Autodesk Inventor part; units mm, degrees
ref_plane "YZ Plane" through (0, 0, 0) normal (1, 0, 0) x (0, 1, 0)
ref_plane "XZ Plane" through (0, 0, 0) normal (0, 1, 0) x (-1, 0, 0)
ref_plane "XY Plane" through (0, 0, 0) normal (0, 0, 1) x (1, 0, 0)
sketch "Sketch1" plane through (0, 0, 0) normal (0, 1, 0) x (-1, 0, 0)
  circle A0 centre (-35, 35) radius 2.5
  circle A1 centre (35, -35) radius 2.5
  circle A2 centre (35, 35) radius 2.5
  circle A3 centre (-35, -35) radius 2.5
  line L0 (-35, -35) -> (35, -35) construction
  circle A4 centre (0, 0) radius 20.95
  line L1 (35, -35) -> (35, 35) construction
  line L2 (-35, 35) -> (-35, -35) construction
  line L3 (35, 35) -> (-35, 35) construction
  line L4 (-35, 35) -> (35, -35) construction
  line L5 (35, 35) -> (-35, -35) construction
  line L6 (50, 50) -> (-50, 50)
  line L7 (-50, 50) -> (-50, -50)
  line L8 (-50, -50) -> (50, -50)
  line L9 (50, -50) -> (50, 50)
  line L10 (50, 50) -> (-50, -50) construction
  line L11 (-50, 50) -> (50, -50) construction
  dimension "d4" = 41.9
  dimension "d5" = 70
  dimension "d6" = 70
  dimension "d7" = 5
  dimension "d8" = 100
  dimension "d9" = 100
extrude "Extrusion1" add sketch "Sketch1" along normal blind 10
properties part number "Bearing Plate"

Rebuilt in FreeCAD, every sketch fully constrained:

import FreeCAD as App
import Part
import Sketcher
from FreeCAD import Vector
Q = App.Units.Quantity

doc = App.newDocument("Part")
body = doc.addObject("PartDesign::Body", "Body")

sketch1 = doc.addObject("Sketcher::SketchObject", "Sketch")
body.addObject(sketch1)
sketch1.AttachmentSupport = (doc.XZ_Plane, [""])
sketch1.MapMode = "FlatFace"
sketch1.addGeometry([
    Part.LineSegment(Vector(-50, -50, 0), Vector(-50, 50, 0)),
    Part.LineSegment(Vector(-50, 50, 0), Vector(50, 50, 0)),
    Part.LineSegment(Vector(50, 50, 0), Vector(50, -50, 0)),
    Part.LineSegment(Vector(50, -50, 0), Vector(-50, -50, 0)),
    Part.Circle(Vector(35, -35, 0), Vector(0, 0, 1), 2.5),
    Part.Circle(Vector(-35, -35, 0), Vector(0, 0, 1), 2.5),
    Part.Circle(Vector(35, 35, 0), Vector(0, 0, 1), 2.5),
    Part.Circle(Vector(0, 0, 0), Vector(0, 0, 1), 20.95),
    Part.Circle(Vector(-35, 35, 0), Vector(0, 0, 1), 2.5),
], False)
sketch1.addConstraint([
    Sketcher.Constraint("Coincident", 0, 2, 1, 1),
    Sketcher.Constraint("Coincident", 1, 2, 2, 1),
    Sketcher.Constraint("Coincident", 2, 2, 3, 1),
    Sketcher.Constraint("Coincident", 3, 2, 0, 1),
    Sketcher.Constraint("Vertical", 0),
    Sketcher.Constraint("Horizontal", 1),
    Sketcher.Constraint("Vertical", 2),
    Sketcher.Constraint("Horizontal", 3),
    Sketcher.Constraint("Coincident", 7, 3, -1, 1),
    Sketcher.Constraint("Equal", 4, 5),
    Sketcher.Constraint("Equal", 5, 6),
    Sketcher.Constraint("Equal", 6, 8),
    Sketcher.Constraint("Symmetric", 5, 3, 6, 3, -1, 1),
    Sketcher.Constraint("Symmetric", 4, 3, 8, 3, -1, 1),
    Sketcher.Constraint("Symmetric", 0, 2, 2, 2, -1, 1),
    Sketcher.Constraint("Symmetric", 4, 3, 5, 3, -2),
    Sketcher.Constraint("Equal", 3, 0),
    Sketcher.Constraint("Diameter", 4, Q("5 mm")),
    Sketcher.Constraint("Diameter", 7, Q("41.9 mm")),
    Sketcher.Constraint("DistanceX", 1, 1, 1, 2, Q("100 mm")),
    Sketcher.Constraint("DistanceX", 5, 3, 4, 3, Q("70 mm")),
    Sketcher.Constraint("DistanceY", 4, 3, 6, 3, Q("70 mm")),
])
pad1 = doc.addObject("PartDesign::Pad", "Pad")
body.addObject(pad1)
pad1.Profile = sketch1
pad1.Length = 10
pad1.Reversed = True

doc.recompute()
